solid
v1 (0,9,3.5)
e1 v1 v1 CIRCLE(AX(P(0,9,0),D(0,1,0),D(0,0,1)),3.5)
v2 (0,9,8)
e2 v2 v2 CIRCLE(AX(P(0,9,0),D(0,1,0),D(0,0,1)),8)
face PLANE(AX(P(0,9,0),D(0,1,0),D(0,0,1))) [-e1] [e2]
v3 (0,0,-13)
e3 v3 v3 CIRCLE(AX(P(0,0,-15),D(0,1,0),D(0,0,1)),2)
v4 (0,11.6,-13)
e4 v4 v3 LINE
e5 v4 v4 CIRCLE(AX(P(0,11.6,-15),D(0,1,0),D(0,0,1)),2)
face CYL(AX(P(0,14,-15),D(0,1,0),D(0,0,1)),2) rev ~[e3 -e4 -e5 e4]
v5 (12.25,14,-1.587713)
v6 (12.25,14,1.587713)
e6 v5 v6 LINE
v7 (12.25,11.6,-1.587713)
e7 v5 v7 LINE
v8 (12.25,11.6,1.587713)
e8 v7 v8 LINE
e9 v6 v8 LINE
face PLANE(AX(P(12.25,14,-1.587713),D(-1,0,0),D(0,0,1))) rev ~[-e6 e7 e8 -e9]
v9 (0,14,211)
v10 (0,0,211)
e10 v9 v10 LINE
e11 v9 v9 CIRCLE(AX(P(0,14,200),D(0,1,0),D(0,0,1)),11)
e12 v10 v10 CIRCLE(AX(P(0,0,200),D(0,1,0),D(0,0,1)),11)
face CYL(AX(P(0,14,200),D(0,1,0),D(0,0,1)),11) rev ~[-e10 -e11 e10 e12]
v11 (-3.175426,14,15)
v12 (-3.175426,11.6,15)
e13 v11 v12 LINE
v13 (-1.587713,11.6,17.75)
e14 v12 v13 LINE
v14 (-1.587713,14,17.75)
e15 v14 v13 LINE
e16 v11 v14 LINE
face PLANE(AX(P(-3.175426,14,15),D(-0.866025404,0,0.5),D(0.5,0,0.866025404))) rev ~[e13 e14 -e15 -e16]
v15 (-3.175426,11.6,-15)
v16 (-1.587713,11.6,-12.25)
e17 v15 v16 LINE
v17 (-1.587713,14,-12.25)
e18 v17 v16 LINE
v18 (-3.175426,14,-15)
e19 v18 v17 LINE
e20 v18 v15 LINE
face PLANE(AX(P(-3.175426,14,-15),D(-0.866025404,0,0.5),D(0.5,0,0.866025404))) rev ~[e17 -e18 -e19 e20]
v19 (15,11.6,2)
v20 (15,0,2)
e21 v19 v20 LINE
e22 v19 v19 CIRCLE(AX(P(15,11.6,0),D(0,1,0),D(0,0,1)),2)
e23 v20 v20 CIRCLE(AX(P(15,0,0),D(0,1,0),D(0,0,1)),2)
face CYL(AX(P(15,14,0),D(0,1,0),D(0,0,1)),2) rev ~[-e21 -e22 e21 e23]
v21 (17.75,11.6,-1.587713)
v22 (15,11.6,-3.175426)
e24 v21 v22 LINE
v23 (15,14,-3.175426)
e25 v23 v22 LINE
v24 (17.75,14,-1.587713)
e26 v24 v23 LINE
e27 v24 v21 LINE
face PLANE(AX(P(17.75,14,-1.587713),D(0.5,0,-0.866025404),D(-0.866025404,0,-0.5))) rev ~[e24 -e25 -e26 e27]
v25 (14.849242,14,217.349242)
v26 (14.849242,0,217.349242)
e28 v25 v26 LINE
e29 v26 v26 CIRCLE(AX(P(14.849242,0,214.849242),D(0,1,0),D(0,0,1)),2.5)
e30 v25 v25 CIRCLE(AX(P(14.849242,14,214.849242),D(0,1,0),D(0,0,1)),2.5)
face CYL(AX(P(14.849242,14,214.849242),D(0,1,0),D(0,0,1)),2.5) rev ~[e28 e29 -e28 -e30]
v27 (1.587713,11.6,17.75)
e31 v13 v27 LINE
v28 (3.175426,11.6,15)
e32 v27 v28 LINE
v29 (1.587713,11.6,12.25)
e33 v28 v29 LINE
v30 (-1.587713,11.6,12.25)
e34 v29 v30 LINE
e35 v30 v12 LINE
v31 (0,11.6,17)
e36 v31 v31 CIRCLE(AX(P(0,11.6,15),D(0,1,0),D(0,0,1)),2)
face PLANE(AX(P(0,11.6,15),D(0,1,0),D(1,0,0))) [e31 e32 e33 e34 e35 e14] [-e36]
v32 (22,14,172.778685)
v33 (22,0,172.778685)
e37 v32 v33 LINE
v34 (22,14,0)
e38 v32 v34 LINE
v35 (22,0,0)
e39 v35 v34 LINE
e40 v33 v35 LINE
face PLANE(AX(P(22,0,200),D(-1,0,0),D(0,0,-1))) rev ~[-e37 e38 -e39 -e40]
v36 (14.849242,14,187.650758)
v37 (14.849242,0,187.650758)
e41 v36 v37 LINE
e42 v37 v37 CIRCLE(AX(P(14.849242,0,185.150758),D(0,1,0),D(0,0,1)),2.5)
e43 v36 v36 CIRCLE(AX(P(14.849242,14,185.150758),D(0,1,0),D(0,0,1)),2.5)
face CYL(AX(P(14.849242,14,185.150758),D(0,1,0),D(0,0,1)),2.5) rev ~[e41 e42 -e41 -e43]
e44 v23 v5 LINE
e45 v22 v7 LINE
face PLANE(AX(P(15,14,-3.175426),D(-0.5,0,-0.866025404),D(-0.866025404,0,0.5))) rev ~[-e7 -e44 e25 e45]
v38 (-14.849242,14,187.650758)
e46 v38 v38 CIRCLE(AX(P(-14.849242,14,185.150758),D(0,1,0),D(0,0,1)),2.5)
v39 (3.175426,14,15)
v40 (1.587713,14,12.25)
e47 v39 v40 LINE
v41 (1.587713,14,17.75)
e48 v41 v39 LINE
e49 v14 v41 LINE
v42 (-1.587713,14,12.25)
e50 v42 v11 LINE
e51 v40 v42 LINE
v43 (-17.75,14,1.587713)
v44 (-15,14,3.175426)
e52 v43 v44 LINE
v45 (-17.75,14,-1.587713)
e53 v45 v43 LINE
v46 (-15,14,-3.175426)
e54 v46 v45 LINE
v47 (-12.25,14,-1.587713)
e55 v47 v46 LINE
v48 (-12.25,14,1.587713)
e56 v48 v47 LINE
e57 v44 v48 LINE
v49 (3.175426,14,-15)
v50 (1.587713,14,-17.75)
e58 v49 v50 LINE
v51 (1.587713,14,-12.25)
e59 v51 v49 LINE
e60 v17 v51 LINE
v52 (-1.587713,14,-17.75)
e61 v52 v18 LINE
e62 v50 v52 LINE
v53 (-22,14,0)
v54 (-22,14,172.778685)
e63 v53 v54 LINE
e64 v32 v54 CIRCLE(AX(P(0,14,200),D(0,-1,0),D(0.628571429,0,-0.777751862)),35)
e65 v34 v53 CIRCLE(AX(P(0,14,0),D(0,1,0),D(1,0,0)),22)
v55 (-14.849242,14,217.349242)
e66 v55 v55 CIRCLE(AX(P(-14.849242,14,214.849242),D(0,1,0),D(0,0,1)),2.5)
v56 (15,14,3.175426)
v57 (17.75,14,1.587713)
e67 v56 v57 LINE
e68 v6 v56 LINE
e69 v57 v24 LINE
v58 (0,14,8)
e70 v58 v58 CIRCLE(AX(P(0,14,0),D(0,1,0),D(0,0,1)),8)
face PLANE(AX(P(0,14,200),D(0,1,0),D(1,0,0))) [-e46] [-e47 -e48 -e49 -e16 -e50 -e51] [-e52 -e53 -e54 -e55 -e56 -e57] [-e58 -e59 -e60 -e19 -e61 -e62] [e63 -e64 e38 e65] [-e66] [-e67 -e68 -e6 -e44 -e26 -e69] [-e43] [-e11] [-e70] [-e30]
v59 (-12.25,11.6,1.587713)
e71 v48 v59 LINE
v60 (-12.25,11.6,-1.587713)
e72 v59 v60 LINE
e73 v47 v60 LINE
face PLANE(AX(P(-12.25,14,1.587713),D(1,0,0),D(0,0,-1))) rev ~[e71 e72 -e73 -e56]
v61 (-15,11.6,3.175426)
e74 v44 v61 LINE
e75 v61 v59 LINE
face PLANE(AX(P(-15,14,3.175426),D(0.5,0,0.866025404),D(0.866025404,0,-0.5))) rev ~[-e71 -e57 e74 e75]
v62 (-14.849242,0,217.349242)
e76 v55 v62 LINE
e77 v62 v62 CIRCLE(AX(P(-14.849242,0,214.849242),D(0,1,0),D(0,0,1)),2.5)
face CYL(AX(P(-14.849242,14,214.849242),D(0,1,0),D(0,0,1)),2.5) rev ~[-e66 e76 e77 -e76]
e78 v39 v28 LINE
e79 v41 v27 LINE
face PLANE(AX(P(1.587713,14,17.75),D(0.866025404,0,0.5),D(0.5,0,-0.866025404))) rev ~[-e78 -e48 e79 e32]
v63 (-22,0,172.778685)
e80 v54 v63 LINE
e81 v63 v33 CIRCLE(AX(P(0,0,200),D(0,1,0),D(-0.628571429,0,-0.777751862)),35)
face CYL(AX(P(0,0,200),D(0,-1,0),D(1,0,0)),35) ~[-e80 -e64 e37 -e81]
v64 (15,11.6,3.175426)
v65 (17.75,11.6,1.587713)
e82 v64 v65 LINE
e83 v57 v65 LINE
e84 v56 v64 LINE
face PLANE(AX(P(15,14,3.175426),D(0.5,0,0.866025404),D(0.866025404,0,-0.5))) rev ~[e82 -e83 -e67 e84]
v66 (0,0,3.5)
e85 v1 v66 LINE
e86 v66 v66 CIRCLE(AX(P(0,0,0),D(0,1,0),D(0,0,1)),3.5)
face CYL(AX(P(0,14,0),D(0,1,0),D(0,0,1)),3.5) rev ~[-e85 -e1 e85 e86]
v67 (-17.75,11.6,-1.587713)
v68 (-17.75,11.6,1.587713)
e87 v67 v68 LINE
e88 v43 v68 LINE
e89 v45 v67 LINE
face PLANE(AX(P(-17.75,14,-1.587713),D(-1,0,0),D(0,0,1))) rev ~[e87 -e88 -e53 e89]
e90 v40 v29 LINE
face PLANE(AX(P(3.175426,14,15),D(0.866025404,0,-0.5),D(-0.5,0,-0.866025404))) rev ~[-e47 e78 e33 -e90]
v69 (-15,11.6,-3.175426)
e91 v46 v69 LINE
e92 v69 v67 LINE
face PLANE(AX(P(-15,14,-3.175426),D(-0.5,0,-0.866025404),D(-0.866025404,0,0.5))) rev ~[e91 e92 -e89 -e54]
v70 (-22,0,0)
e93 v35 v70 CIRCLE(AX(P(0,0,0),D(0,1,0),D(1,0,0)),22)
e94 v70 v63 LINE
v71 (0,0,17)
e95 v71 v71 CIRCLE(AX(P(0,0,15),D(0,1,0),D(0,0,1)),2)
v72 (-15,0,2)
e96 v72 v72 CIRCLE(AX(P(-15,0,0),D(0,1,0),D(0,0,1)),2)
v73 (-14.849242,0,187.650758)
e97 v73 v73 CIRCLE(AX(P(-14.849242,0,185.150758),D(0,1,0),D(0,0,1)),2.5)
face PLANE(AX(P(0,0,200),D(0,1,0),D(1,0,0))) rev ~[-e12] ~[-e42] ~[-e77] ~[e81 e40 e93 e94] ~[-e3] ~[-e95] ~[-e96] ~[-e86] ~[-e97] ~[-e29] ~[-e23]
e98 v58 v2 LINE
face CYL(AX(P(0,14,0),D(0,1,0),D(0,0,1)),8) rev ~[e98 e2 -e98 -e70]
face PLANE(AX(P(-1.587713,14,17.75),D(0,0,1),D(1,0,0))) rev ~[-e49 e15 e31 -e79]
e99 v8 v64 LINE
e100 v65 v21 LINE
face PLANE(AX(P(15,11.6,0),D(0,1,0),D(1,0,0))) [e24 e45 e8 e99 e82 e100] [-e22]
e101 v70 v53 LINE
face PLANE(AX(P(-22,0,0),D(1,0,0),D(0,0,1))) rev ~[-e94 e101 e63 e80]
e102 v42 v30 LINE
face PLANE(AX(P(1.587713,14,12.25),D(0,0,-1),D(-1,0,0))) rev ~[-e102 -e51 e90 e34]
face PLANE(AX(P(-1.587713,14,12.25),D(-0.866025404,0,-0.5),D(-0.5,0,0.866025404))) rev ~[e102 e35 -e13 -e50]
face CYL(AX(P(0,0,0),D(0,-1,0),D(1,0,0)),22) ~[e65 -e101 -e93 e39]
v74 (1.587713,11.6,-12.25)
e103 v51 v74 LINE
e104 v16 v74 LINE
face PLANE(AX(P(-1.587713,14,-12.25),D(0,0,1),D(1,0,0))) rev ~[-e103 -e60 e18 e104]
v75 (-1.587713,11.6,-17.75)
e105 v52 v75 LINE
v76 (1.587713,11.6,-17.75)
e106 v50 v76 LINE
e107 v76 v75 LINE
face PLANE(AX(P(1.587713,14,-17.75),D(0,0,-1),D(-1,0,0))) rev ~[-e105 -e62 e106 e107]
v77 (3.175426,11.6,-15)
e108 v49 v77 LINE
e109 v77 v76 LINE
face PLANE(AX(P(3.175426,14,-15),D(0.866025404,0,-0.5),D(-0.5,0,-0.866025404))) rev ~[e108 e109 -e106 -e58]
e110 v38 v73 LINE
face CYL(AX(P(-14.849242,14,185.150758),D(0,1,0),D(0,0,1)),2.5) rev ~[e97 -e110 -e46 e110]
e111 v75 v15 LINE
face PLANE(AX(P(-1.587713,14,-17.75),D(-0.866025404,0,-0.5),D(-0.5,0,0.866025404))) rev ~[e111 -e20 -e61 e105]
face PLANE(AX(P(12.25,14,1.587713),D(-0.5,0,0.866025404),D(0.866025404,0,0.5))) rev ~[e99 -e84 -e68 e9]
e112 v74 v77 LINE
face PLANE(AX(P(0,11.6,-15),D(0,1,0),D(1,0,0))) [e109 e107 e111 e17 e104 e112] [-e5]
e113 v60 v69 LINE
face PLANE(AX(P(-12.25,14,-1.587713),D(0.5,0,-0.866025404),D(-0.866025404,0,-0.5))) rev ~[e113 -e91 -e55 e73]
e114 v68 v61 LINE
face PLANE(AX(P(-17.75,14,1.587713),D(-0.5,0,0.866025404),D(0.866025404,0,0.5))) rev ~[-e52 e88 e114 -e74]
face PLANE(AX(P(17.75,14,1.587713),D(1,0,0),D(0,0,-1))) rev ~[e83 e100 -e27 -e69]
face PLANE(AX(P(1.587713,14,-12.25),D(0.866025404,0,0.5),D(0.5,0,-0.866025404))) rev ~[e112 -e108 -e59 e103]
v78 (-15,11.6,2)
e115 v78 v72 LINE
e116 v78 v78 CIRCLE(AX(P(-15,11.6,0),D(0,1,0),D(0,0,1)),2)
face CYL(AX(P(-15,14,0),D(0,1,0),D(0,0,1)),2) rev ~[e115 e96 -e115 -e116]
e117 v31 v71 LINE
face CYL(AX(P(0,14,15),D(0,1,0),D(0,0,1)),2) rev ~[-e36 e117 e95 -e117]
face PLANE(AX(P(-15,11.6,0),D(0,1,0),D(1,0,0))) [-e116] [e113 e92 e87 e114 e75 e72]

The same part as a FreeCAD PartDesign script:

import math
import FreeCAD as App
import Part
import Sketcher

V = App.Vector
Q = App.Units.Quantity


def add_polygon(sketch, points):
    """Adds a closed chain of lines whose ends are joined by coincident constraints."""
    first, n = sketch.GeometryCount, len(points)
    for a, b in zip(points, points[1:] + points[:1]):
        sketch.addGeometry(Part.LineSegment(App.Vector(*a, 0), App.Vector(*b, 0)), False)
    for i in range(n):
        sketch.addConstraint(Sketcher.Constraint("Coincident", first + i, 2, first + (i + 1) % n, 1))

doc = App.newDocument("Part")
body = doc.addObject("PartDesign::Body", "Body")

# Sketch on XZ plane
sketch1 = body.newObject("Sketcher::SketchObject", "Sketch")
sketch1.AttachmentSupport = (doc.getObject("XZ_Plane"), [""])
sketch1.MapMode = "FlatFace"
sketch1.addGeometry(Part.LineSegment(V(-22, 0, 0), V(-22, 200, 0)), False)
sketch1.addGeometry(Part.ArcOfCircle(Part.Circle(V(0, 200, 0), V(0, 0, 1), 22), math.radians(0), math.radians(180)), False)
sketch1.addGeometry(Part.LineSegment(V(22, 200, 0), V(22, 0, 0)), False)
sketch1.addGeometry(Part.ArcOfCircle(Part.Circle(V(0, 0, 0), V(0, 0, 1), 22), math.radians(180), math.radians(360)), False)
sketch1.addConstraint(Sketcher.Constraint("Tangent", 0, 2, 1, 2))
sketch1.addConstraint(Sketcher.Constraint("Tangent", 1, 1, 2, 1))
sketch1.addConstraint(Sketcher.Constraint("Tangent", 2, 2, 3, 2))
sketch1.addConstraint(Sketcher.Constraint("Tangent", 3, 1, 0, 1))
sketch1.addConstraint(Sketcher.Constraint("Vertical", 0))
sketch1.addConstraint(Sketcher.Constraint("Vertical", 2))
sketch1.addConstraint(Sketcher.Constraint("Coincident", 3, 3, -1, 1))
sketch1.addConstraint(Sketcher.Constraint("Radius", 1, Q("22 mm")))
sketch1.addConstraint(Sketcher.Constraint("DistanceY", 0, 1, 0, 2, Q("200 mm")))
pad1 = body.newObject("PartDesign::Pad", "Pad")
pad1.Profile = sketch1
pad1.Length = 14
pad1.Reversed = True

# Sketch on XZ plane
sketch2 = body.newObject("Sketcher::SketchObject", "Sketch001")
sketch2.AttachmentSupport = (doc.getObject("XZ_Plane"), [""])
sketch2.MapMode = "FlatFace"
sketch2.AttachmentOffset = App.Placement(V(0, 0, -14), App.Rotation())
sketch2.addGeometry(Part.Circle(V(0, 0, 0), V(0, 0, 1), 8), False)
sketch2.addConstraint(Sketcher.Constraint("Coincident", 0, 3, -1, 1))
sketch2.addConstraint(Sketcher.Constraint("Diameter", 0, Q("16 mm")))
pocket1 = body.newObject("PartDesign::Pocket", "Pocket")
pocket1.Profile = sketch2
pocket1.Length = 5
pocket1.Reversed = True

# Sketch on XZ plane
sketch3 = body.newObject("Sketcher::SketchObject", "Sketch002")
sketch3.AttachmentSupport = (doc.getObject("XZ_Plane"), [""])
sketch3.MapMode = "FlatFace"
sketch3.AttachmentOffset = App.Placement(V(0, 0, -14), App.Rotation())
sketch3.addGeometry(Part.Circle(V(0, 0, 0), V(0, 0, 1), 3.5), False)
sketch3.addConstraint(Sketcher.Constraint("Coincident", 0, 3, -1, 1))
sketch3.addConstraint(Sketcher.Constraint("Diameter", 0, Q("7 mm")))
pocket2 = body.newObject("PartDesign::Pocket", "Pocket001")
pocket2.Profile = sketch3
pocket2.Type = "ThroughAll"
pocket2.Reversed = True

# Sketch on XZ plane
sketch4 = body.newObject("Sketcher::SketchObject", "Sketch003")
sketch4.AttachmentSupport = (doc.getObject("XZ_Plane"), [""])
sketch4.MapMode = "FlatFace"
sketch4.AttachmentOffset = App.Placement(V(0, 0, -14), App.Rotation())
add_polygon(sketch4, [(15, 3.2), (17.8, 1.6), (17.8, -1.6), (15, -3.2), (12.2, -1.6), (12.2, 1.6)])  # lines 0-5
add_polygon(sketch4, [(3.2, -15), (1.6, -17.8), (-1.6, -17.8), (-3.2, -15), (-1.6, -12.2), (1.6, -12.2)])  # lines 6-11
add_polygon(sketch4, [(-3.2, 15), (-1.6, 17.8), (1.6, 17.8), (3.2, 15), (1.6, 12.2), (-1.6, 12.2)])  # lines 12-17
add_polygon(sketch4, [(-15, -3.2), (-17.8, -1.6), (-17.8, 1.6), (-15, 3.2), (-12.2, 1.6), (-12.2, -1.6)])  # lines 18-23
sketch4.addConstraint(Sketcher.Constraint("Vertical", 1))
sketch4.addConstraint(Sketcher.Constraint("Vertical", 4))
sketch4.addConstraint(Sketcher.Constraint("Horizontal", 7))
sketch4.addConstraint(Sketcher.Constraint("Horizontal", 10))
sketch4.addConstraint(Sketcher.Constraint("Horizontal", 13))
sketch4.addConstraint(Sketcher.Constraint("Horizontal", 16))
sketch4.addConstraint(Sketcher.Constraint("Vertical", 19))
sketch4.addConstraint(Sketcher.Constraint("Vertical", 22))
sketch4.addConstraint(Sketcher.Constraint("Symmetric", 6, 2, 12, 2, -1, 1))
sketch4.addConstraint(Sketcher.Constraint("Symmetric", 8, 2, 14, 2, -1, 1))
sketch4.addConstraint(Sketcher.Constraint("Symmetric", 9, 2, 15, 2, -1, 1))
sketch4.addConstraint(Sketcher.Constraint("Symmetric", 11, 2, 17, 2, -1, 1))
sketch4.addConstraint(Sketcher.Constraint("Symmetric", 0, 2, 18, 2, -1, 1))
sketch4.addConstraint(Sketcher.Constraint("Symmetric", 2, 2, 20, 2, -1, 1))
sketch4.addConstraint(Sketcher.Constraint("Symmetric", 3, 2, 21, 2, -1, 1))
sketch4.addConstraint(Sketcher.Constraint("Symmetric", 5, 2, 23, 2, -1, 1))
sketch4.addConstraint(Sketcher.Constraint("Symmetric", 8, 2, 11, 2, -2))
sketch4.addConstraint(Sketcher.Constraint("Symmetric", 5, 2, 20, 2, -2))
sketch4.addConstraint(Sketcher.Constraint("Parallel", 0, 3))
sketch4.addConstraint(Sketcher.Constraint("Parallel", 2, 5))
sketch4.addConstraint(Sketcher.Constraint("Perpendicular", 3, 6))
sketch4.addConstraint(Sketcher.Constraint("Perpendicular", 5, 8))
sketch4.addConstraint(Sketcher.Constraint("Parallel", 6, 9))
sketch4.addConstraint(Sketcher.Constraint("Parallel", 8, 11))
sketch4.addConstraint(Sketcher.Constraint("Parallel", 11, 14))
sketch4.addConstraint(Sketcher.Constraint("Parallel", 14, 17))
sketch4.addConstraint(Sketcher.Constraint("Perpendicular", 17, 20))
sketch4.addConstraint(Sketcher.Constraint("Parallel", 20, 23))
sketch4.addConstraint(Sketcher.Constraint("Horizontal", 1, 2, 3, 2))
sketch4.addConstraint(Sketcher.Constraint("Horizontal", 0, 2, 4, 2))
sketch4.addConstraint(Sketcher.Constraint("Vertical", 7, 2, 9, 2))
sketch4.addConstraint(Sketcher.Constraint("Equal", 16, 1))
sketch4.addConstraint(Sketcher.Constraint("Equal", 5, 6))
sketch4.addConstraint(Sketcher.Constraint("Angle", 0, Q("-30 deg")))
sketch4.addConstraint(Sketcher.Constraint("DistanceX", -1, 1, 2, 2, Q("15 mm")))
sketch4.addConstraint(Sketcher.Constraint("DistanceY", 8, 2, -1, 1, Q("15 mm")))
sketch4.addConstraint(Sketcher.Constraint("DistanceX", 3, 2, 1, 2, Q("5.5 mm")))
sketch4.addConstraint(Sketcher.Constraint("DistanceX", 7, 2, 7, 1, Q("3.175426 mm")))
pocket3 = body.newObject("PartDesign::Pocket", "Pocket002")
pocket3.Profile = sketch4
pocket3.Length = 2.4
pocket3.Reversed = True

# Sketch on XZ plane
sketch5 = body.newObject("Sketcher::SketchObject", "Sketch004")
sketch5.AttachmentSupport = (doc.getObject("XZ_Plane"), [""])
sketch5.MapMode = "FlatFace"
sketch5.AttachmentOffset = App.Placement(V(0, 0, -14), App.Rotation())
sketch5.addGeometry(Part.Circle(V(0, -15, 0), V(0, 0, 1), 2), False)
sketch5.addGeometry(Part.Circle(V(15, 0, 0), V(0, 0, 1), 2), False)
sketch5.addGeometry(Part.Circle(V(0, 15, 0), V(0, 0, 1), 2), False)
sketch5.addGeometry(Part.Circle(V(-15, 0, 0), V(0, 0, 1), 2), False)
sketch5.addConstraint(Sketcher.Constraint("Equal", 0, 1))
sketch5.addConstraint(Sketcher.Constraint("Equal", 1, 2))
sketch5.addConstraint(Sketcher.Constraint("Equal", 2, 3))
sketch5.addConstraint(Sketcher.Constraint("Symmetric", 0, 3, 2, 3, -1, 1))
sketch5.addConstraint(Sketcher.Constraint("Symmetric", 1, 3, 3, 3, -1, 1))
sketch5.addConstraint(Sketcher.Constraint("PointOnObject", 0, 3, -2))
sketch5.addConstraint(Sketcher.Constraint("PointOnObject", 1, 3, -1))
sketch5.addConstraint(Sketcher.Constraint("Diameter", 0, Q("4 mm")))
sketch5.addConstraint(Sketcher.Constraint("DistanceY", 0, 3, -1, 1, Q("15 mm")))
sketch5.addConstraint(Sketcher.Constraint("DistanceX", -1, 1, 1, 3, Q("15 mm")))
pocket4 = body.newObject("PartDesign::Pocket", "Pocket003")
pocket4.Profile = sketch5
pocket4.Type = "ThroughAll"
pocket4.Reversed = True

# Sketch on XZ plane
sketch6 = body.newObject("Sketcher::SketchObject", "Sketch005")
sketch6.AttachmentSupport = (doc.getObject("XZ_Plane"), [""])
sketch6.MapMode = "FlatFace"
sketch6.addGeometry(Part.Circle(V(0, 200, 0), V(0, 0, 1), 35), False)
sketch6.addConstraint(Sketcher.Constraint("PointOnObject", 0, 3, -2))
sketch6.addConstraint(Sketcher.Constraint("Diameter", 0, Q("70 mm")))
sketch6.addConstraint(Sketcher.Constraint("DistanceY", -1, 1, 0, 3, Q("200 mm")))
pad2 = body.newObject("PartDesign::Pad", "Pad001")
pad2.Profile = sketch6
pad2.Length = 14
pad2.Reversed = True

# Sketch on XZ plane
sketch7 = body.newObject("Sketcher::SketchObject", "Sketch006")
sketch7.AttachmentSupport = (doc.getObject("XZ_Plane"), [""])
sketch7.MapMode = "FlatFace"
sketch7.AttachmentOffset = App.Placement(V(0, 0, -14), App.Rotation())
sketch7.addGeometry(Part.Circle(V(-14.8, 185.2, 0), V(0, 0, 1), 2.5), False)
sketch7.addGeometry(Part.Circle(V(14.8, 185.2, 0), V(0, 0, 1), 2.5), False)
sketch7.addGeometry(Part.Circle(V(14.8, 214.8, 0), V(0, 0, 1), 2.5), False)
sketch7.addGeometry(Part.Circle(V(-14.8, 214.8, 0), V(0, 0, 1), 2.5), False)
sketch7.addGeometry(Part.Circle(V(0, 200, 0), V(0, 0, 1), 11), False)
sketch7.addConstraint(Sketcher.Constraint("Equal", 0, 1))
sketch7.addConstraint(Sketcher.Constraint("Equal", 1, 2))
sketch7.addConstraint(Sketcher.Constraint("Equal", 2, 3))
sketch7.addConstraint(Sketcher.Constraint("Symmetric", 0, 3, 1, 3, -2))
sketch7.addConstraint(Sketcher.Constraint("Symmetric", 2, 3, 3, 3, -2))
sketch7.addConstraint(Sketcher.Constraint("PointOnObject", 4, 3, -2))
sketch7.addConstraint(Sketcher.Constraint("Vertical", 1, 3, 2, 3))
sketch7.addConstraint(Sketcher.Constraint("Diameter", 0, Q("5 mm")))
sketch7.addConstraint(Sketcher.Constraint("Diameter", 4, Q("22 mm")))
sketch7.addConstraint(Sketcher.Constraint("DistanceY", -1, 1, 4, 3, Q("200 mm")))
sketch7.addConstraint(Sketcher.Constraint("DistanceX", 0, 3, -1, 1, Q("14.849242 mm")))
sketch7.addConstraint(Sketcher.Constraint("DistanceY", -1, 1, 0, 3, Q("185.150758 mm")))
sketch7.addConstraint(Sketcher.Constraint("DistanceY", -1, 1, 2, 3, Q("214.849242 mm")))
pocket5 = body.newObject("PartDesign::Pocket", "Pocket004")
pocket5.Profile = sketch7
pocket5.Type = "ThroughAll"
pocket5.Reversed = True

doc.recompute()
